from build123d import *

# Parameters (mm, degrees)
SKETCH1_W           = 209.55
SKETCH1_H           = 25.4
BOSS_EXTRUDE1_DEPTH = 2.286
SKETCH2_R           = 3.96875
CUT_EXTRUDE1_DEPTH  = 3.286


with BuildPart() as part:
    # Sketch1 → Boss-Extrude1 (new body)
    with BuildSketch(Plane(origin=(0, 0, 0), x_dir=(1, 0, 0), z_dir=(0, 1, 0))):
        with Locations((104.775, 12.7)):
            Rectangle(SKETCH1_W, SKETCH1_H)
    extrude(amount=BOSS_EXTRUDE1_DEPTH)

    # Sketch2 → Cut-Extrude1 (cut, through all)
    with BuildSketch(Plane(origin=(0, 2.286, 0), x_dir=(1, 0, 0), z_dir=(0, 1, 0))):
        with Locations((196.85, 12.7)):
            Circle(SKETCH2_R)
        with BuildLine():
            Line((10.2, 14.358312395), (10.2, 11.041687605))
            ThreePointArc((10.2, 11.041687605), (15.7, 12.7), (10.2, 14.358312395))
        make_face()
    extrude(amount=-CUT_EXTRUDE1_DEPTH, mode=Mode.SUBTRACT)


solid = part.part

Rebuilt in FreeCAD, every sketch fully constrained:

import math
import FreeCAD as App
import Part
import Sketcher
Q = App.Units.Quantity


def add_polygon(sketch, points):
    """Adds a closed chain of lines whose ends are joined by coincident constraints."""
    first, n = sketch.GeometryCount, len(points)
    for a, b in zip(points, points[1:] + points[:1]):
        sketch.addGeometry(Part.LineSegment(App.Vector(*a, 0), App.Vector(*b, 0)), False)
    for i in range(n):
        sketch.addConstraint(Sketcher.Constraint("Coincident", first + i, 2, first + (i + 1) % n, 1))

doc = App.newDocument("Part")
body = doc.addObject("PartDesign::Body", "Body")

# Sketch on XZ plane
sketch1 = body.newObject("Sketcher::SketchObject", "Sketch")
sketch1.AttachmentSupport = (doc.getObject("XZ_Plane"), [""])
sketch1.MapMode = "FlatFace"
add_polygon(sketch1, [(0, -25), (0, 0), (210, 0), (210, -25)])  # lines 0-3
sketch1.addConstraint(Sketcher.Constraint("Vertical", 0))
sketch1.addConstraint(Sketcher.Constraint("Horizontal", 1))
sketch1.addConstraint(Sketcher.Constraint("Vertical", 2))
sketch1.addConstraint(Sketcher.Constraint("Horizontal", 3))
sketch1.addConstraint(Sketcher.Constraint("Coincident", 0, 2, -1, 1))
sketch1.addConstraint(Sketcher.Constraint("DistanceY", 0, 1, 0, 2, Q("1 in")))
sketch1.addConstraint(Sketcher.Constraint("DistanceX", 1, 1, 1, 2, Q("8.25 in")))
pad1 = body.newObject("PartDesign::Pad", "Pad")
pad1.Profile = sketch1
pad1.Length = Q("0.09 in")
pad1.Reversed = True

# Sketch on XZ plane
sketch2 = body.newObject("Sketcher::SketchObject", "Sketch001")
sketch2.AttachmentSupport = (doc.getObject("XZ_Plane"), [""])
sketch2.MapMode = "FlatFace"
sketch2.AttachmentOffset = App.Placement(App.Vector(0, 0, -0.09 * 25.4), App.Rotation())
sketch2.addGeometry(Part.Circle(App.Vector(196.8, -12.7, 0), App.Vector(0, 0, 1), 4), False)
sketch2.addGeometry(Part.LineSegment(App.Vector(10.2, -14.4, 0), App.Vector(10.2, -11, 0)), False)
sketch2.addGeometry(Part.ArcOfCircle(Part.Circle(App.Vector(12.7, -12.7, 0), App.Vector(0, 0, 1), 3), math.radians(-146), math.radians(146)), False)
sketch2.addConstraint(Sketcher.Constraint("Coincident", 1, 1, 2, 1))
sketch2.addConstraint(Sketcher.Constraint("Coincident", 2, 2, 1, 2))
sketch2.addConstraint(Sketcher.Constraint("Vertical", 1))
sketch2.addConstraint(Sketcher.Constraint("Horizontal", 0, 3, 2, 3))
sketch2.addConstraint(Sketcher.Constraint("Diameter", 0, Q("0.3125 in")))
sketch2.addConstraint(Sketcher.Constraint("DistanceY", 0, 3, -1, 1, Q("0.5 in")))
sketch2.addConstraint(Sketcher.Constraint("DistanceX", -1, 1, 2, 3, Q("0.5 in")))
sketch2.addConstraint(Sketcher.Constraint("DistanceX", -1, 1, 0, 3, Q("7.75 in")))
sketch2.addConstraint(Sketcher.Constraint("Radius", 2, Q("3 mm")))
sketch2.addConstraint(Sketcher.Constraint("DistanceX", -1, 1, 1, 1, Q("10.2 mm")))
pocket1 = body.newObject("PartDesign::Pocket", "Pocket")
pocket1.Profile = sketch2
pocket1.Type = "ThroughAll"
pocket1.Reversed = True

doc.recompute()
